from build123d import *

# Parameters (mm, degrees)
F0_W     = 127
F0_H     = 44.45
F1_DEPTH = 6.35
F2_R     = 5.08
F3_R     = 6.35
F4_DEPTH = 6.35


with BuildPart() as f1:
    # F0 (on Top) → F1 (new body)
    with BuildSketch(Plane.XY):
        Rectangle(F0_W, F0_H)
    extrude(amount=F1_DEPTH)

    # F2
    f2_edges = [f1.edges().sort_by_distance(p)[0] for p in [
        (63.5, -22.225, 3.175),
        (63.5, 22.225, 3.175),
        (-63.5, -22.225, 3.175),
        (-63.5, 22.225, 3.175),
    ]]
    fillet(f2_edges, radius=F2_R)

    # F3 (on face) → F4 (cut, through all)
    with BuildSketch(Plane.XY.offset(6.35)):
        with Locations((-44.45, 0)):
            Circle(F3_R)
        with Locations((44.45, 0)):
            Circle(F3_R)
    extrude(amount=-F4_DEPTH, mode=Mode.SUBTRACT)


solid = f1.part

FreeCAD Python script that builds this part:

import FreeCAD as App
import Part
import Sketcher

V = App.Vector
Q = App.Units.Quantity


def edges_at(feature, points):
    """Names of the edges that pass closest to the given points."""
    edges = feature.Shape.Edges
    near = lambda p: min(range(len(edges)), key=lambda i: edges[i].distToShape(Part.Vertex(*p))[0])
    return sorted({f"Edge{near(p) + 1}" for p in points})


def add_polygon(sketch, points):
    """Adds a closed chain of lines whose ends are joined by coincident constraints."""
    first, n = sketch.GeometryCount, len(points)
    for a, b in zip(points, points[1:] + points[:1]):
        sketch.addGeometry(Part.LineSegment(App.Vector(*a, 0), App.Vector(*b, 0)), False)
    for i in range(n):
        sketch.addConstraint(Sketcher.Constraint("Coincident", first + i, 2, first + (i + 1) % n, 1))

doc = App.newDocument("Part")
body = doc.addObject("PartDesign::Body", "Body")

# Sketch on XY plane
sketch1 = body.newObject("Sketcher::SketchObject", "Sketch")
sketch1.AttachmentSupport = (doc.getObject("XY_Plane"), [""])
sketch1.MapMode = "FlatFace"
add_polygon(sketch1, [(-64, 22), (-64, -22), (64, -22), (64, 22)])  # lines 0-3
sketch1.addConstraint(Sketcher.Constraint("Vertical", 0))
sketch1.addConstraint(Sketcher.Constraint("Horizontal", 1))
sketch1.addConstraint(Sketcher.Constraint("Vertical", 2))
sketch1.addConstraint(Sketcher.Constraint("Horizontal", 3))
sketch1.addConstraint(Sketcher.Constraint("Symmetric", 0, 2, 2, 2, -1, 1))
sketch1.addConstraint(Sketcher.Constraint("DistanceX", 1, 1, 1, 2, Q("5 in")))
sketch1.addConstraint(Sketcher.Constraint("DistanceY", 0, 2, 0, 1, Q("1.75 in")))
pad1 = body.newObject("PartDesign::Pad", "Pad")
pad1.Profile = sketch1
pad1.Length = Q("0.25 in")
doc.recompute()

fillet = body.newObject("PartDesign::Fillet", "Fillet")
fillet.Base = (pad1, edges_at(pad1, [
    (63.5, -22.225, 3.175),
    (63.5, 22.225, 3.175),
    (-63.5, -22.225, 3.175),
    (-63.5, 22.225, 3.175),
]))
fillet.Radius = Q("0.2 in")

# Sketch on XY plane
sketch2 = body.newObject("Sketcher::SketchObject", "Sketch001")
sketch2.AttachmentSupport = (doc.getObject("XY_Plane"), [""])
sketch2.MapMode = "FlatFace"
sketch2.AttachmentOffset = App.Placement(V(0, 0, 0.25 * 25.4), App.Rotation())
sketch2.addGeometry(Part.Circle(V(-44, 0, 0), V(0, 0, 1), 6), False)
sketch2.addGeometry(Part.Circle(V(44, 0, 0), V(0, 0, 1), 6), False)
sketch2.addConstraint(Sketcher.Constraint("Equal", 0, 1))
sketch2.addConstraint(Sketcher.Constraint("Symmetric", 0, 3, 1, 3, -1, 1))
sketch2.addConstraint(Sketcher.Constraint("PointOnObject", 0, 3, -1))
sketch2.addConstraint(Sketcher.Constraint("Diameter", 0, Q("0.5 in")))
sketch2.addConstraint(Sketcher.Constraint("DistanceX", 0, 3, 1, 3, Q("3.5 in")))
pocket1 = body.newObject("PartDesign::Pocket", "Pocket")
pocket1.Profile = sketch2
pocket1.Type = "ThroughAll"

doc.recompute()
